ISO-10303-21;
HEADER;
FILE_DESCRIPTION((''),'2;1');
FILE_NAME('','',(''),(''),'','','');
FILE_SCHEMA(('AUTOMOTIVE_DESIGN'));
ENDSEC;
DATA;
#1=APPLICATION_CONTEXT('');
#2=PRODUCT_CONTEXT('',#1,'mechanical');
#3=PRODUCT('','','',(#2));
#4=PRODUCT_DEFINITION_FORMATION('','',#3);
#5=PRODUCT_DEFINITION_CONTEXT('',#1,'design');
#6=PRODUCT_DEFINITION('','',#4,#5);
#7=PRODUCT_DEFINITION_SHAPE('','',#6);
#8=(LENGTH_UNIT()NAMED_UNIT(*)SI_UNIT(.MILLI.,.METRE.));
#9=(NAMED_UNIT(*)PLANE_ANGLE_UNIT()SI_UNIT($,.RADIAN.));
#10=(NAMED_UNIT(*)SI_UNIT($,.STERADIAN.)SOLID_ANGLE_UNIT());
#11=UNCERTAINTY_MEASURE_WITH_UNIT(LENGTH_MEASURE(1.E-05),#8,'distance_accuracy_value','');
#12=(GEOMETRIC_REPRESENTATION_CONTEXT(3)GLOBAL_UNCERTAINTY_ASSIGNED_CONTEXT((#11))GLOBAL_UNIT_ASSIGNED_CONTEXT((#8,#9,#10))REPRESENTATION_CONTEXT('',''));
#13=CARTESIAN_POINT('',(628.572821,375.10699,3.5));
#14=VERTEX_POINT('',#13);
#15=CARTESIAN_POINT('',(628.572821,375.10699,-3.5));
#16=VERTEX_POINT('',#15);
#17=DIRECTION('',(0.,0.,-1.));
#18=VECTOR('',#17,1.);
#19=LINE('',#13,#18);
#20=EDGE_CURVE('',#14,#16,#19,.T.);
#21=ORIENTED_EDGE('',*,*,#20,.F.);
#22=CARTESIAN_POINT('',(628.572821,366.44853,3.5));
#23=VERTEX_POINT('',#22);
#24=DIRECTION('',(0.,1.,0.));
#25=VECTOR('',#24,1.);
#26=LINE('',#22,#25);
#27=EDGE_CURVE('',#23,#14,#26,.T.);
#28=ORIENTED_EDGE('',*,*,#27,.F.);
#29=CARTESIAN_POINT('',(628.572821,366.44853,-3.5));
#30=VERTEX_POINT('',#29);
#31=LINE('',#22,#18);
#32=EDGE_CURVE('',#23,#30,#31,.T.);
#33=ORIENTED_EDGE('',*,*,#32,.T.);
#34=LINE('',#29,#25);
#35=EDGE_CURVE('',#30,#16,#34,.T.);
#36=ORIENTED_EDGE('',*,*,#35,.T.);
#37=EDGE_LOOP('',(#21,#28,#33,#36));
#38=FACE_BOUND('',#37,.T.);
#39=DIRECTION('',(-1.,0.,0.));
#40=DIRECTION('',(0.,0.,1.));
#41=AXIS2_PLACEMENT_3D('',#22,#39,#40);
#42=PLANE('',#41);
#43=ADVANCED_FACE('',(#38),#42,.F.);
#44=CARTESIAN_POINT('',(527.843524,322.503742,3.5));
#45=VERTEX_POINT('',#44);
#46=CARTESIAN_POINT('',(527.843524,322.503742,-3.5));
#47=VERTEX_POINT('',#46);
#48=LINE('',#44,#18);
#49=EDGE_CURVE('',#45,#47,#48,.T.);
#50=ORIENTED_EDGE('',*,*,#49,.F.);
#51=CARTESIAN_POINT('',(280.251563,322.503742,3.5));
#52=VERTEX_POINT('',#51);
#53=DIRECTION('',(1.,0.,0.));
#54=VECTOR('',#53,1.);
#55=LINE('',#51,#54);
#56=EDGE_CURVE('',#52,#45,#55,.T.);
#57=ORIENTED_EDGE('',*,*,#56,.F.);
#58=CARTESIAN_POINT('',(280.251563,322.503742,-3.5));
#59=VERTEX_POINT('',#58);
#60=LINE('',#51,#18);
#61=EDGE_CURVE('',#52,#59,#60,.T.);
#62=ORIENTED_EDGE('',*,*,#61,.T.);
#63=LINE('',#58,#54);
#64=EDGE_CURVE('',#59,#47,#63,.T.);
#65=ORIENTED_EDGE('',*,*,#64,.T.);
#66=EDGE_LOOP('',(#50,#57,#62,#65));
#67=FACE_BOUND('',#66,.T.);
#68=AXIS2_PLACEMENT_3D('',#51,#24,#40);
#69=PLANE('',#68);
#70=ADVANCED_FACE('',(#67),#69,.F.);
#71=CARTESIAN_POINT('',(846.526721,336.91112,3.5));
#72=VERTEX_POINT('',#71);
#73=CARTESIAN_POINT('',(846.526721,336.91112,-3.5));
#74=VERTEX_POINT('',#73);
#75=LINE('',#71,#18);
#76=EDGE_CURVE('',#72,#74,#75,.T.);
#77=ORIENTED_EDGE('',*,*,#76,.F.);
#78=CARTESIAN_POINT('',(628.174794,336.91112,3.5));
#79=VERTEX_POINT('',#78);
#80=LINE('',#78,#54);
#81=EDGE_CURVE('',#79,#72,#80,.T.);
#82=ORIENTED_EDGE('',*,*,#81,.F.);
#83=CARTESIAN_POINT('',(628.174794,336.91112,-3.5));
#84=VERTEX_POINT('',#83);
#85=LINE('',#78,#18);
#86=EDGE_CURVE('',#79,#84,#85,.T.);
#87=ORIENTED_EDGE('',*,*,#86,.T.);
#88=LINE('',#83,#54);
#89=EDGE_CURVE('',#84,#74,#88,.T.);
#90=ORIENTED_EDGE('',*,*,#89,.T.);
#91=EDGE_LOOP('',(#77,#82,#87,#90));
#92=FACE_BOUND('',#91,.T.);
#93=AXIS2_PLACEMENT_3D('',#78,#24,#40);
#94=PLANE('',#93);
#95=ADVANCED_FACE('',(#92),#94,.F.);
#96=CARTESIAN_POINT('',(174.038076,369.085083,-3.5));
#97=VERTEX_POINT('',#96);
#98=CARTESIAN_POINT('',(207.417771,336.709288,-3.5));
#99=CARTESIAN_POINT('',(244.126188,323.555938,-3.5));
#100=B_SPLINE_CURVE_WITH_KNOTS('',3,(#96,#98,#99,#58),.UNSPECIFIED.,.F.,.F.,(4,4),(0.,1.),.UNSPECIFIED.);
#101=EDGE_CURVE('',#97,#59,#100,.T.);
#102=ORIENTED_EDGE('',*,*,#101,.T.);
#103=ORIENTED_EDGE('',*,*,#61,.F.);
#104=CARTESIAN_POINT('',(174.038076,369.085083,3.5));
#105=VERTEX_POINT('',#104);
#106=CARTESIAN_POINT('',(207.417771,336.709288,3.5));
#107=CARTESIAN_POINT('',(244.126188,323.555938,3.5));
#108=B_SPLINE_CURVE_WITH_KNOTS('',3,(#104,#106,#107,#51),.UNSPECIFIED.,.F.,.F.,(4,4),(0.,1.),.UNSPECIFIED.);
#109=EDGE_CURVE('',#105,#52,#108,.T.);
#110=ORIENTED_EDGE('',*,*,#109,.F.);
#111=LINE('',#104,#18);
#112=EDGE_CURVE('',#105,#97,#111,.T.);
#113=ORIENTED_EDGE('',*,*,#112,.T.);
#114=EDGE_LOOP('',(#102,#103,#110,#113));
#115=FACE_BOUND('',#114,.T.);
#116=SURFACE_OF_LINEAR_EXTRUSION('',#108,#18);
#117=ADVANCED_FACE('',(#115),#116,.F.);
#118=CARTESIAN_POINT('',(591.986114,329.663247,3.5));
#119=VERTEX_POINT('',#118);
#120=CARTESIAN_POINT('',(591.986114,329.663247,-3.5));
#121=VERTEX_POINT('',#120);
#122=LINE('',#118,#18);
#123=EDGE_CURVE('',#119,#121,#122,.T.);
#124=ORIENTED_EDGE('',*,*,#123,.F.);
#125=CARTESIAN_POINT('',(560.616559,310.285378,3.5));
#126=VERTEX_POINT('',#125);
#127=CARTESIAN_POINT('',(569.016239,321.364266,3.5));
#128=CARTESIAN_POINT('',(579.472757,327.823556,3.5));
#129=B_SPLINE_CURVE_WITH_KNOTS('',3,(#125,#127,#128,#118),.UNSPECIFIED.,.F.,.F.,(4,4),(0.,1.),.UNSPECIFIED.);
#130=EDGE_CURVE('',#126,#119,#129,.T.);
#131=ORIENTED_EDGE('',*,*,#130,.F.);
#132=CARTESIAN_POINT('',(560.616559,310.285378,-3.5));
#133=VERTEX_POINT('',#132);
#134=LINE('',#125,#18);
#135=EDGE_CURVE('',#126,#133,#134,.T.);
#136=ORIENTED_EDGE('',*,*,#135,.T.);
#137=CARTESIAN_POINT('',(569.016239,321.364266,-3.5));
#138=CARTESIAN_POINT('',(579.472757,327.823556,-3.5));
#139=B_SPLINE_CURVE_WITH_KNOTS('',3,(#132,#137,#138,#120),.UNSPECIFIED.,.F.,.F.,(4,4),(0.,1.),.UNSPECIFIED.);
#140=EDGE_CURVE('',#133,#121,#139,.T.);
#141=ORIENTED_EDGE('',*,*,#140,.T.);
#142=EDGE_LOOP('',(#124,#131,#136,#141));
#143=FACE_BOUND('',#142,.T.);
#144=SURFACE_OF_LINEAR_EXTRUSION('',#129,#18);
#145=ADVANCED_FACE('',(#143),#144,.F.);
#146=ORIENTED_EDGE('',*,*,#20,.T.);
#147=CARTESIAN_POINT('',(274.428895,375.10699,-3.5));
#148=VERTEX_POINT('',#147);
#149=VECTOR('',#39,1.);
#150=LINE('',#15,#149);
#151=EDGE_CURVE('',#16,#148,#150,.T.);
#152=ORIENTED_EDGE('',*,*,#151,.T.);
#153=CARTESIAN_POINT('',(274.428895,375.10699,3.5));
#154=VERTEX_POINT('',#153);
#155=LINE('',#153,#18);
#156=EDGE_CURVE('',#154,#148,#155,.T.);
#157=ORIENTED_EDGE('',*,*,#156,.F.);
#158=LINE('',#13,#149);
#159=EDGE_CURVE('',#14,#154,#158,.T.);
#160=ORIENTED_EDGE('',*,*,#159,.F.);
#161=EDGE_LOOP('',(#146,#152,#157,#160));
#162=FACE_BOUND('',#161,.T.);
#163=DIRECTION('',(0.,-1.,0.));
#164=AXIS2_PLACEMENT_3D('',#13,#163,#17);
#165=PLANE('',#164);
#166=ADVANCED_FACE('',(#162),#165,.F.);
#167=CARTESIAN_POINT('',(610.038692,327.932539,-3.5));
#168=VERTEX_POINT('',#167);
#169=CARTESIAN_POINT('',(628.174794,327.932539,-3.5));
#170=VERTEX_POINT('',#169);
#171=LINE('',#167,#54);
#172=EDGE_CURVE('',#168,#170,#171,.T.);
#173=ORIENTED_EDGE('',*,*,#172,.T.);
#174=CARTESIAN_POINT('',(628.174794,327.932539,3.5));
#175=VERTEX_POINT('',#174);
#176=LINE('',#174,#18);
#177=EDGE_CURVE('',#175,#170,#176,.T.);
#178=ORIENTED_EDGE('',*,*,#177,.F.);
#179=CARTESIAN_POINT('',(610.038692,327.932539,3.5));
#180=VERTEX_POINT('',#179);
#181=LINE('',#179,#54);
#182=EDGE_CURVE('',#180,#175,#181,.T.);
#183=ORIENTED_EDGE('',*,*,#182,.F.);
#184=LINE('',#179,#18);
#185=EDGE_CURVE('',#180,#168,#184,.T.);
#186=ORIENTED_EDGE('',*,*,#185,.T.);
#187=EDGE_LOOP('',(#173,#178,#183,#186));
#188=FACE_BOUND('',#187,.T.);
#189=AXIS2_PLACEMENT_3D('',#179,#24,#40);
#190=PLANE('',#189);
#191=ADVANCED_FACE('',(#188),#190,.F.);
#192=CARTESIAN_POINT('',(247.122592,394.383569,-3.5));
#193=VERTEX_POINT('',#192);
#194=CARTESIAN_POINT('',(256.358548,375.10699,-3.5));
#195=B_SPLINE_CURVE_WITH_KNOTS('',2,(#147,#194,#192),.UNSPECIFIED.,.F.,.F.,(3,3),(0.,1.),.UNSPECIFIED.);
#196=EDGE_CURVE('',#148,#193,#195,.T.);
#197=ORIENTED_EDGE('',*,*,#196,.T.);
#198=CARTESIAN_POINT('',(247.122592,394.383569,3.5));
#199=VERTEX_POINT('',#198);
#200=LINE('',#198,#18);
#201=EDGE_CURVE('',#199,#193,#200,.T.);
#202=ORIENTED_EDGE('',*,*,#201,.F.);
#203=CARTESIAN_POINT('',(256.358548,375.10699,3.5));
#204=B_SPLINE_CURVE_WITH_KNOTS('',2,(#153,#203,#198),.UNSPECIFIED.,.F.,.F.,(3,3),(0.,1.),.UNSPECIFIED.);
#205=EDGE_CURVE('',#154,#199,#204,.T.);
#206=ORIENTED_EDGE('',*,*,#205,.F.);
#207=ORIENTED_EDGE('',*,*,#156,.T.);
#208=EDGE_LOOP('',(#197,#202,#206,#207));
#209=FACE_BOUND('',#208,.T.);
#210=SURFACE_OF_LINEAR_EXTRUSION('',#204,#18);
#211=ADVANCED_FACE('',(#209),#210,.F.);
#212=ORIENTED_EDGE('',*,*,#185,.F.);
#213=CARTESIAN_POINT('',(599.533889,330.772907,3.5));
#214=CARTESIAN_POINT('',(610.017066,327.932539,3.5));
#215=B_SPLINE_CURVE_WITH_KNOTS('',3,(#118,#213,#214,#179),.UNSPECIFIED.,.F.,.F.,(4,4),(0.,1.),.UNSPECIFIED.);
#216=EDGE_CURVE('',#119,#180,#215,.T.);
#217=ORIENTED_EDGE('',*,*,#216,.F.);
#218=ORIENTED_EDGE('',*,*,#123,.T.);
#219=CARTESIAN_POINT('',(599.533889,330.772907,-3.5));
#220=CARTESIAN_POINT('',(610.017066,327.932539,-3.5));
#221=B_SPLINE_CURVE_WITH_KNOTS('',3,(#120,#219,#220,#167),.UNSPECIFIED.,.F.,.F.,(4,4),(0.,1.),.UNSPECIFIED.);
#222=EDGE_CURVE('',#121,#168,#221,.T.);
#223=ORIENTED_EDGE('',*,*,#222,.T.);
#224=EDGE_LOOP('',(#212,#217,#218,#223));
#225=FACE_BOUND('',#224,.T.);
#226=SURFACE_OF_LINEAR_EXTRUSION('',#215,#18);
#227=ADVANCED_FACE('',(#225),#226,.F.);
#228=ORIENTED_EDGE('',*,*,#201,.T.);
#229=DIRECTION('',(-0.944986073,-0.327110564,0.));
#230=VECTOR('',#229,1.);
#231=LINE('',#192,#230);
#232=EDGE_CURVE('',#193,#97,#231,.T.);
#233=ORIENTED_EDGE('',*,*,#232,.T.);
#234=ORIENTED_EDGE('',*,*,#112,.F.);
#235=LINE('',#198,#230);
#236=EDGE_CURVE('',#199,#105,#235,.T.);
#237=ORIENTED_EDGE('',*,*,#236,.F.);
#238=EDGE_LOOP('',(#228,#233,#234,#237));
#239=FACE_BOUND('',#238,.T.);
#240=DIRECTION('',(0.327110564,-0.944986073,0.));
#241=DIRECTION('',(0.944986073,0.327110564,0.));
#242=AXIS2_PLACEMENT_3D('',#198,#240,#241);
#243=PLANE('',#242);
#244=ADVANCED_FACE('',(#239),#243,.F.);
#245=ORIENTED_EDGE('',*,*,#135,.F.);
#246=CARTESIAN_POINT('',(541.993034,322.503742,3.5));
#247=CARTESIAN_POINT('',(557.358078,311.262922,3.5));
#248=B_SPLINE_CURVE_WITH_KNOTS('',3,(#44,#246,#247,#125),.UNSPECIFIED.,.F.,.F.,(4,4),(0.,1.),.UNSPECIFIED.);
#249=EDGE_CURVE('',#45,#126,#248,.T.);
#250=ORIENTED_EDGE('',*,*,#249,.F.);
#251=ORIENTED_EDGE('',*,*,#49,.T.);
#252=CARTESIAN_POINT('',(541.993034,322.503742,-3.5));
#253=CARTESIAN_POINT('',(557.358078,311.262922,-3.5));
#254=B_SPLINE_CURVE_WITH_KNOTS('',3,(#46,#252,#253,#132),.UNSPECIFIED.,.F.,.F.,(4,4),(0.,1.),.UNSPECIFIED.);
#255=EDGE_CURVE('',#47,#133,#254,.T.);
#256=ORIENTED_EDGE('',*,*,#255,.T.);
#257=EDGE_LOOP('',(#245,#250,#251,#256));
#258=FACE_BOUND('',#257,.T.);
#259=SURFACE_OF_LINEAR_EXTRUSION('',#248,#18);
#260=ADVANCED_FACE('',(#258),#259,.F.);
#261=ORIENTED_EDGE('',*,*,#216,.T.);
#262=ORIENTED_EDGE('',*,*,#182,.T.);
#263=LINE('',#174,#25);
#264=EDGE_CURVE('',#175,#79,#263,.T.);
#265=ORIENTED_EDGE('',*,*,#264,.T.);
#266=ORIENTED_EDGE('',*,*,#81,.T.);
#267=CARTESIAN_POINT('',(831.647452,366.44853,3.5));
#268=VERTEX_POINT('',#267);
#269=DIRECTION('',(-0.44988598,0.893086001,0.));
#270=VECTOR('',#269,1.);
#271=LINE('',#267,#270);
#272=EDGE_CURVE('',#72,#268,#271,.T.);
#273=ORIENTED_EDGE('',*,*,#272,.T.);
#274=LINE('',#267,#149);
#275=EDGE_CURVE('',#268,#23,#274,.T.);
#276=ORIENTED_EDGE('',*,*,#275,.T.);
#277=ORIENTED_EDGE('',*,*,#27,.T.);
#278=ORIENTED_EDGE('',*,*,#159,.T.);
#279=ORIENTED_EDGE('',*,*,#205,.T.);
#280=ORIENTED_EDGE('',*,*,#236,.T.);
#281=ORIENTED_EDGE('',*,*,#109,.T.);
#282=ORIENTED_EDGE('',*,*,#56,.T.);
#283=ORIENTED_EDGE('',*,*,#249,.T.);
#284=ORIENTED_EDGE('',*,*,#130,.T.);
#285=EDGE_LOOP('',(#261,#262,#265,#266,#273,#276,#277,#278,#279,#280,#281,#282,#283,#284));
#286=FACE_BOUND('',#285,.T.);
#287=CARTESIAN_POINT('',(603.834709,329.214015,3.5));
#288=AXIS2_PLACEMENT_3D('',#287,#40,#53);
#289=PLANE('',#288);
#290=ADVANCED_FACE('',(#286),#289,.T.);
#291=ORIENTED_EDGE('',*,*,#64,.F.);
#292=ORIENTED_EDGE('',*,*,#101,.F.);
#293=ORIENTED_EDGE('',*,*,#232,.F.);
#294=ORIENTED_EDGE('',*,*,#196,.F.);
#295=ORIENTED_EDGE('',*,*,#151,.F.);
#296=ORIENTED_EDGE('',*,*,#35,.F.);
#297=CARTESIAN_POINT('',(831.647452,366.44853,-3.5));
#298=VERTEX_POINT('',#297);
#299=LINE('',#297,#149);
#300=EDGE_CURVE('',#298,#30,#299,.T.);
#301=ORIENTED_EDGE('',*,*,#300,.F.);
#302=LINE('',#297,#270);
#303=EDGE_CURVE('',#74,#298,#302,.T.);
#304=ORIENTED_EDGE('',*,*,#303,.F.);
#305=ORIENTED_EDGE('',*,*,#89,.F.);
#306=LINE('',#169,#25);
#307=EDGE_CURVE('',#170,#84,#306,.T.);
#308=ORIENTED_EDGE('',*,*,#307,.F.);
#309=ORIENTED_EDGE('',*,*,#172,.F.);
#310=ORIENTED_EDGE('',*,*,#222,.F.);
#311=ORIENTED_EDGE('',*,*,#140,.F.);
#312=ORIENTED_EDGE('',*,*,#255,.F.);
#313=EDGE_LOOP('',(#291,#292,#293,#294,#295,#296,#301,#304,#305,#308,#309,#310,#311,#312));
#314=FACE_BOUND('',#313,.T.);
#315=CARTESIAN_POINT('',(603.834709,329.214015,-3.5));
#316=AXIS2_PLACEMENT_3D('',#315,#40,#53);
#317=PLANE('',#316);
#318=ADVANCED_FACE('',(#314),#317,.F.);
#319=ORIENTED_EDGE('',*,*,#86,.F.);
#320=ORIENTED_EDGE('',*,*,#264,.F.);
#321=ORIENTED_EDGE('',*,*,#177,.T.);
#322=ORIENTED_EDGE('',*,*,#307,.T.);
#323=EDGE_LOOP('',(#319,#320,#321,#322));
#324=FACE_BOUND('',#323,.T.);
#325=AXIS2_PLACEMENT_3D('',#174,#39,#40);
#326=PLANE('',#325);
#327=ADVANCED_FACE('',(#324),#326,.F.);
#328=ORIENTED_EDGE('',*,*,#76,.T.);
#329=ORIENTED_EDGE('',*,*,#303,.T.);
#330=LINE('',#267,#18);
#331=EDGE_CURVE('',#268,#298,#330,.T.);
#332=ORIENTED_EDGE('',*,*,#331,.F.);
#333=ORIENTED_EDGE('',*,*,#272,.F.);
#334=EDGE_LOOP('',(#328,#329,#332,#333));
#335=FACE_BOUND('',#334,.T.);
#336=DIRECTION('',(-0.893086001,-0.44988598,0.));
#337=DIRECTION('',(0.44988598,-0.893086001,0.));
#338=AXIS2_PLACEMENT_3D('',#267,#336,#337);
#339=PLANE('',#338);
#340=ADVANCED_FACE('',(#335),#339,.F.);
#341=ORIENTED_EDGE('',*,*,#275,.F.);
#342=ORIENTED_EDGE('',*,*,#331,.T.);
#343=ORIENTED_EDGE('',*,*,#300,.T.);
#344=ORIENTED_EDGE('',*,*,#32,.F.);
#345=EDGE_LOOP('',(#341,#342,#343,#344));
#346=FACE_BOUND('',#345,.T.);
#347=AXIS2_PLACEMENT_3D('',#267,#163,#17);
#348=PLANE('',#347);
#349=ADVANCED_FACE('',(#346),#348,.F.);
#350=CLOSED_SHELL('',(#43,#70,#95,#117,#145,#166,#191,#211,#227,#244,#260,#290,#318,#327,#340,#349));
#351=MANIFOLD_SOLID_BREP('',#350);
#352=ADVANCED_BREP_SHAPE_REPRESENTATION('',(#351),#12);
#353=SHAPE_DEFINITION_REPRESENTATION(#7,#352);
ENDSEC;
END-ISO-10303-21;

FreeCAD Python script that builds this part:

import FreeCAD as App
import Part
import Sketcher

V = App.Vector
Q = App.Units.Quantity

doc = App.newDocument("Part")
body = doc.addObject("PartDesign::Body", "Body")

sketch1 = body.newObject("Sketcher::SketchObject", "Sketch")
sketch1.AttachmentSupport = (doc.getObject("XY_Plane"), [""])
sketch1.MapMode = "FlatFace"
sketch1.addGeometry([
    Part.LineSegment(V(831.647452, 366.44853, 0), V(628.572821, 366.44853, 0)),
    Part.LineSegment(V(628.572821, 366.44853, 0), V(628.572821, 375.10699, 0)),
    Part.LineSegment(V(628.572821, 375.10699, 0), V(274.428895, 375.10699, 0)),
    Part.BSplineCurve([V(274.428895, 375.10699, 0), V(256.358548, 375.10699, 0), V(247.122592, 394.383569, 0)], [3, 3], [0, 1], False, 2, [1, 1, 1], False),
    Part.LineSegment(V(247.122592, 394.383569, 0), V(174.038076, 369.085083, 0)),
    Part.BSplineCurve([V(174.038076, 369.085083, 0), V(207.417771, 336.709288, 0), V(244.126188, 323.555938, 0), V(280.251563, 322.503742, 0)], [4, 4], [0, 1], False, 3, [1, 1, 1, 1], False),
    Part.LineSegment(V(280.251563, 322.503742, 0), V(527.843524, 322.503742, 0)),
    Part.BSplineCurve([V(527.843524, 322.503742, 0), V(541.993034, 322.503742, 0), V(557.358078, 311.262922, 0), V(560.616559, 310.285378, 0)], [4, 4], [0, 1], False, 3, [1, 1, 1, 1], False),
    Part.BSplineCurve([V(560.616559, 310.285378, 0), V(569.016239, 321.364266, 0), V(579.472757, 327.823556, 0), V(591.986114, 329.663247, 0)], [4, 4], [0, 1], False, 3, [1, 1, 1, 1], False),
    Part.BSplineCurve([V(591.986114, 329.663247, 0), V(599.533889, 330.772907, 0), V(610.017066, 327.932539, 0), V(610.038692, 327.932539, 0)], [4, 4], [0, 1], False, 3, [1, 1, 1, 1], False),
    Part.LineSegment(V(610.038692, 327.932539, 0), V(628.174794, 327.932539, 0)),
    Part.LineSegment(V(628.174794, 327.932539, 0), V(628.174794, 336.91112, 0)),
    Part.LineSegment(V(628.174794, 336.91112, 0), V(846.526721, 336.91112, 0)),
    Part.LineSegment(V(846.526721, 336.91112, 0), V(831.647452, 366.44853, 0)),
], False)
sketch1.addConstraint([
    Sketcher.Constraint("Block", 3),
    Sketcher.Constraint("Block", 5),
    Sketcher.Constraint("Block", 7),
    Sketcher.Constraint("Block", 8),
    Sketcher.Constraint("Block", 9),
    Sketcher.Constraint("Coincident", 0, 2, 1, 1),
    Sketcher.Constraint("Coincident", 1, 2, 2, 1),
    Sketcher.Constraint("Coincident", 2, 2, 3, 1),
    Sketcher.Constraint("Coincident", 3, 2, 4, 1),
    Sketcher.Constraint("Coincident", 4, 2, 5, 1),
    Sketcher.Constraint("Coincident", 5, 2, 6, 1),
    Sketcher.Constraint("Coincident", 6, 2, 7, 1),
    Sketcher.Constraint("Coincident", 9, 2, 10, 1),
    Sketcher.Constraint("Coincident", 10, 2, 11, 1),
    Sketcher.Constraint("Coincident", 11, 2, 12, 1),
    Sketcher.Constraint("Coincident", 12, 2, 13, 1),
    Sketcher.Constraint("Coincident", 13, 2, 0, 1),
    Sketcher.Constraint("Horizontal", 0),
    Sketcher.Constraint("Vertical", 1),
    Sketcher.Constraint("Horizontal", 2),
    Sketcher.Constraint("Horizontal", 10),
    Sketcher.Constraint("Vertical", 11),
    Sketcher.Constraint("Horizontal", 12),
    Sketcher.Constraint("DistanceX", 0, 2, 0, 1, Q("203.074631 mm")),
    Sketcher.Constraint("DistanceY", 1, 1, 1, 2, Q("8.65846 mm")),
    Sketcher.Constraint("DistanceY", 11, 1, 11, 2, Q("8.978581 mm")),
    Sketcher.Constraint("DistanceX", 2, 2, 10, 2, Q("353.745898 mm")),
    Sketcher.Constraint("DistanceX", 0, 2, 12, 2, Q("217.9539 mm")),
    Sketcher.Constraint("DistanceX", 2, 2, 2, 1, Q("354.143926 mm")),
])
pad1 = body.newObject("PartDesign::Pad", "Pad")
pad1.Profile = sketch1
pad1.Length = 7
pad1.Midplane = True

doc.recompute()
